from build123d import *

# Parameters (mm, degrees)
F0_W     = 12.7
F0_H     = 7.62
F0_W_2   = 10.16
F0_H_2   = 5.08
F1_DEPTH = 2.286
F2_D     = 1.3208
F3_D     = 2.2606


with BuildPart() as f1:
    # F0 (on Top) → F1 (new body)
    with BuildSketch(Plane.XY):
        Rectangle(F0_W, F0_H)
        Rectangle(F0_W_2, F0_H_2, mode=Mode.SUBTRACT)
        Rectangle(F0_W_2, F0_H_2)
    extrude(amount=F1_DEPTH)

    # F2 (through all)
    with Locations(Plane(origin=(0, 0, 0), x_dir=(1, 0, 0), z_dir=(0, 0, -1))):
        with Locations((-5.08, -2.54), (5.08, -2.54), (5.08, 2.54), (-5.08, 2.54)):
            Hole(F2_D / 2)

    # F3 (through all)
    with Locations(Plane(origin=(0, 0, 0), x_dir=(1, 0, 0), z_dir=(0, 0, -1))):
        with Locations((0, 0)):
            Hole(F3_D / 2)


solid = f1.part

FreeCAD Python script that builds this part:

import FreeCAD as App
import Part
import Sketcher

V = App.Vector
Q = App.Units.Quantity

doc = App.newDocument("Part")
body = doc.addObject("PartDesign::Body", "Body")

# Sketch on XY plane
sketch1 = doc.addObject("Sketcher::SketchObject", "Sketch")
body.addObject(sketch1)
sketch1.AttachmentSupport = (doc.XY_Plane, [""])
sketch1.MapMode = "FlatFace"
sketch1.addGeometry([
    Part.LineSegment(V(-6, 4, 0), V(-6, -4, 0)),
    Part.LineSegment(V(-6, -4, 0), V(6, -4, 0)),
    Part.LineSegment(V(6, -4, 0), V(6, 4, 0)),
    Part.LineSegment(V(6, 4, 0), V(-6, 4, 0)),
], False)
sketch1.addConstraint([
    Sketcher.Constraint("Coincident", 0, 2, 1, 1),
    Sketcher.Constraint("Coincident", 1, 2, 2, 1),
    Sketcher.Constraint("Coincident", 2, 2, 3, 1),
    Sketcher.Constraint("Coincident", 3, 2, 0, 1),
    Sketcher.Constraint("Vertical", 0),
    Sketcher.Constraint("Horizontal", 1),
    Sketcher.Constraint("Vertical", 2),
    Sketcher.Constraint("Horizontal", 3),
    Sketcher.Constraint("Symmetric", 0, 2, 2, 2, -1, 1),
    Sketcher.Constraint("DistanceX", 1, 1, 1, 2, Q("0.5 in")),
    Sketcher.Constraint("DistanceY", 0, 2, 0, 1, Q("0.3 in")),
])
pad1 = doc.addObject("PartDesign::Pad", "Pad")
body.addObject(pad1)
pad1.Profile = sketch1
pad1.Length = Q("0.09 in")

# Sketch on XY plane
sketch2 = doc.addObject("Sketcher::SketchObject", "Sketch001")
body.addObject(sketch2)
sketch2.AttachmentSupport = (doc.XY_Plane, [""])
sketch2.MapMode = "FlatFace"
sketch2.addGeometry([
    Part.Circle(V(-5.1, 2.5, 0), V(0, 0, 1), 0.7),
    Part.Circle(V(5.1, 2.5, 0), V(0, 0, 1), 0.7),
    Part.Circle(V(5.1, -2.5, 0), V(0, 0, 1), 0.7),
    Part.Circle(V(-5.1, -2.5, 0), V(0, 0, 1), 0.7),
], False)
sketch2.addConstraint([
    Sketcher.Constraint("Equal", 0, 1),
    Sketcher.Constraint("Equal", 1, 2),
    Sketcher.Constraint("Equal", 2, 3),
    Sketcher.Constraint("Symmetric", 0, 3, 2, 3, -1, 1),
    Sketcher.Constraint("Symmetric", 1, 3, 3, 3, -1, 1),
    Sketcher.Constraint("Symmetric", 0, 3, 1, 3, -2),
    Sketcher.Constraint("Diameter", 0, Q("0.052 in")),
    Sketcher.Constraint("DistanceX", 0, 3, -1, 1, Q("0.2 in")),
    Sketcher.Constraint("DistanceY", -1, 1, 0, 3, Q("0.1 in")),
])
doc.recompute()
hole = doc.addObject("PartDesign::Hole", "Hole")
body.addObject(hole)
hole.Profile = sketch2
hole.ThreadType = "None"
hole.Diameter = Q("0.052 in")
hole.DepthType = "ThroughAll"
hole.Reversed = True

# Sketch on XY plane
sketch3 = doc.addObject("Sketcher::SketchObject", "Sketch002")
body.addObject(sketch3)
sketch3.AttachmentSupport = (doc.XY_Plane, [""])
sketch3.MapMode = "FlatFace"
sketch3.addGeometry(Part.Circle(V(0, 0, 0), V(0, 0, 1), 1.1), False)
sketch3.addConstraint([
    Sketcher.Constraint("Coincident", 0, 3, -1, 1),
    Sketcher.Constraint("Diameter", 0, Q("0.089 in")),
])
doc.recompute()
hole2 = doc.addObject("PartDesign::Hole", "Hole001")
body.addObject(hole2)
hole2.Profile = sketch3
hole2.ThreadType = "None"
hole2.Diameter = Q("0.089 in")
hole2.DepthType = "ThroughAll"
hole2.Reversed = True

doc.recompute()
